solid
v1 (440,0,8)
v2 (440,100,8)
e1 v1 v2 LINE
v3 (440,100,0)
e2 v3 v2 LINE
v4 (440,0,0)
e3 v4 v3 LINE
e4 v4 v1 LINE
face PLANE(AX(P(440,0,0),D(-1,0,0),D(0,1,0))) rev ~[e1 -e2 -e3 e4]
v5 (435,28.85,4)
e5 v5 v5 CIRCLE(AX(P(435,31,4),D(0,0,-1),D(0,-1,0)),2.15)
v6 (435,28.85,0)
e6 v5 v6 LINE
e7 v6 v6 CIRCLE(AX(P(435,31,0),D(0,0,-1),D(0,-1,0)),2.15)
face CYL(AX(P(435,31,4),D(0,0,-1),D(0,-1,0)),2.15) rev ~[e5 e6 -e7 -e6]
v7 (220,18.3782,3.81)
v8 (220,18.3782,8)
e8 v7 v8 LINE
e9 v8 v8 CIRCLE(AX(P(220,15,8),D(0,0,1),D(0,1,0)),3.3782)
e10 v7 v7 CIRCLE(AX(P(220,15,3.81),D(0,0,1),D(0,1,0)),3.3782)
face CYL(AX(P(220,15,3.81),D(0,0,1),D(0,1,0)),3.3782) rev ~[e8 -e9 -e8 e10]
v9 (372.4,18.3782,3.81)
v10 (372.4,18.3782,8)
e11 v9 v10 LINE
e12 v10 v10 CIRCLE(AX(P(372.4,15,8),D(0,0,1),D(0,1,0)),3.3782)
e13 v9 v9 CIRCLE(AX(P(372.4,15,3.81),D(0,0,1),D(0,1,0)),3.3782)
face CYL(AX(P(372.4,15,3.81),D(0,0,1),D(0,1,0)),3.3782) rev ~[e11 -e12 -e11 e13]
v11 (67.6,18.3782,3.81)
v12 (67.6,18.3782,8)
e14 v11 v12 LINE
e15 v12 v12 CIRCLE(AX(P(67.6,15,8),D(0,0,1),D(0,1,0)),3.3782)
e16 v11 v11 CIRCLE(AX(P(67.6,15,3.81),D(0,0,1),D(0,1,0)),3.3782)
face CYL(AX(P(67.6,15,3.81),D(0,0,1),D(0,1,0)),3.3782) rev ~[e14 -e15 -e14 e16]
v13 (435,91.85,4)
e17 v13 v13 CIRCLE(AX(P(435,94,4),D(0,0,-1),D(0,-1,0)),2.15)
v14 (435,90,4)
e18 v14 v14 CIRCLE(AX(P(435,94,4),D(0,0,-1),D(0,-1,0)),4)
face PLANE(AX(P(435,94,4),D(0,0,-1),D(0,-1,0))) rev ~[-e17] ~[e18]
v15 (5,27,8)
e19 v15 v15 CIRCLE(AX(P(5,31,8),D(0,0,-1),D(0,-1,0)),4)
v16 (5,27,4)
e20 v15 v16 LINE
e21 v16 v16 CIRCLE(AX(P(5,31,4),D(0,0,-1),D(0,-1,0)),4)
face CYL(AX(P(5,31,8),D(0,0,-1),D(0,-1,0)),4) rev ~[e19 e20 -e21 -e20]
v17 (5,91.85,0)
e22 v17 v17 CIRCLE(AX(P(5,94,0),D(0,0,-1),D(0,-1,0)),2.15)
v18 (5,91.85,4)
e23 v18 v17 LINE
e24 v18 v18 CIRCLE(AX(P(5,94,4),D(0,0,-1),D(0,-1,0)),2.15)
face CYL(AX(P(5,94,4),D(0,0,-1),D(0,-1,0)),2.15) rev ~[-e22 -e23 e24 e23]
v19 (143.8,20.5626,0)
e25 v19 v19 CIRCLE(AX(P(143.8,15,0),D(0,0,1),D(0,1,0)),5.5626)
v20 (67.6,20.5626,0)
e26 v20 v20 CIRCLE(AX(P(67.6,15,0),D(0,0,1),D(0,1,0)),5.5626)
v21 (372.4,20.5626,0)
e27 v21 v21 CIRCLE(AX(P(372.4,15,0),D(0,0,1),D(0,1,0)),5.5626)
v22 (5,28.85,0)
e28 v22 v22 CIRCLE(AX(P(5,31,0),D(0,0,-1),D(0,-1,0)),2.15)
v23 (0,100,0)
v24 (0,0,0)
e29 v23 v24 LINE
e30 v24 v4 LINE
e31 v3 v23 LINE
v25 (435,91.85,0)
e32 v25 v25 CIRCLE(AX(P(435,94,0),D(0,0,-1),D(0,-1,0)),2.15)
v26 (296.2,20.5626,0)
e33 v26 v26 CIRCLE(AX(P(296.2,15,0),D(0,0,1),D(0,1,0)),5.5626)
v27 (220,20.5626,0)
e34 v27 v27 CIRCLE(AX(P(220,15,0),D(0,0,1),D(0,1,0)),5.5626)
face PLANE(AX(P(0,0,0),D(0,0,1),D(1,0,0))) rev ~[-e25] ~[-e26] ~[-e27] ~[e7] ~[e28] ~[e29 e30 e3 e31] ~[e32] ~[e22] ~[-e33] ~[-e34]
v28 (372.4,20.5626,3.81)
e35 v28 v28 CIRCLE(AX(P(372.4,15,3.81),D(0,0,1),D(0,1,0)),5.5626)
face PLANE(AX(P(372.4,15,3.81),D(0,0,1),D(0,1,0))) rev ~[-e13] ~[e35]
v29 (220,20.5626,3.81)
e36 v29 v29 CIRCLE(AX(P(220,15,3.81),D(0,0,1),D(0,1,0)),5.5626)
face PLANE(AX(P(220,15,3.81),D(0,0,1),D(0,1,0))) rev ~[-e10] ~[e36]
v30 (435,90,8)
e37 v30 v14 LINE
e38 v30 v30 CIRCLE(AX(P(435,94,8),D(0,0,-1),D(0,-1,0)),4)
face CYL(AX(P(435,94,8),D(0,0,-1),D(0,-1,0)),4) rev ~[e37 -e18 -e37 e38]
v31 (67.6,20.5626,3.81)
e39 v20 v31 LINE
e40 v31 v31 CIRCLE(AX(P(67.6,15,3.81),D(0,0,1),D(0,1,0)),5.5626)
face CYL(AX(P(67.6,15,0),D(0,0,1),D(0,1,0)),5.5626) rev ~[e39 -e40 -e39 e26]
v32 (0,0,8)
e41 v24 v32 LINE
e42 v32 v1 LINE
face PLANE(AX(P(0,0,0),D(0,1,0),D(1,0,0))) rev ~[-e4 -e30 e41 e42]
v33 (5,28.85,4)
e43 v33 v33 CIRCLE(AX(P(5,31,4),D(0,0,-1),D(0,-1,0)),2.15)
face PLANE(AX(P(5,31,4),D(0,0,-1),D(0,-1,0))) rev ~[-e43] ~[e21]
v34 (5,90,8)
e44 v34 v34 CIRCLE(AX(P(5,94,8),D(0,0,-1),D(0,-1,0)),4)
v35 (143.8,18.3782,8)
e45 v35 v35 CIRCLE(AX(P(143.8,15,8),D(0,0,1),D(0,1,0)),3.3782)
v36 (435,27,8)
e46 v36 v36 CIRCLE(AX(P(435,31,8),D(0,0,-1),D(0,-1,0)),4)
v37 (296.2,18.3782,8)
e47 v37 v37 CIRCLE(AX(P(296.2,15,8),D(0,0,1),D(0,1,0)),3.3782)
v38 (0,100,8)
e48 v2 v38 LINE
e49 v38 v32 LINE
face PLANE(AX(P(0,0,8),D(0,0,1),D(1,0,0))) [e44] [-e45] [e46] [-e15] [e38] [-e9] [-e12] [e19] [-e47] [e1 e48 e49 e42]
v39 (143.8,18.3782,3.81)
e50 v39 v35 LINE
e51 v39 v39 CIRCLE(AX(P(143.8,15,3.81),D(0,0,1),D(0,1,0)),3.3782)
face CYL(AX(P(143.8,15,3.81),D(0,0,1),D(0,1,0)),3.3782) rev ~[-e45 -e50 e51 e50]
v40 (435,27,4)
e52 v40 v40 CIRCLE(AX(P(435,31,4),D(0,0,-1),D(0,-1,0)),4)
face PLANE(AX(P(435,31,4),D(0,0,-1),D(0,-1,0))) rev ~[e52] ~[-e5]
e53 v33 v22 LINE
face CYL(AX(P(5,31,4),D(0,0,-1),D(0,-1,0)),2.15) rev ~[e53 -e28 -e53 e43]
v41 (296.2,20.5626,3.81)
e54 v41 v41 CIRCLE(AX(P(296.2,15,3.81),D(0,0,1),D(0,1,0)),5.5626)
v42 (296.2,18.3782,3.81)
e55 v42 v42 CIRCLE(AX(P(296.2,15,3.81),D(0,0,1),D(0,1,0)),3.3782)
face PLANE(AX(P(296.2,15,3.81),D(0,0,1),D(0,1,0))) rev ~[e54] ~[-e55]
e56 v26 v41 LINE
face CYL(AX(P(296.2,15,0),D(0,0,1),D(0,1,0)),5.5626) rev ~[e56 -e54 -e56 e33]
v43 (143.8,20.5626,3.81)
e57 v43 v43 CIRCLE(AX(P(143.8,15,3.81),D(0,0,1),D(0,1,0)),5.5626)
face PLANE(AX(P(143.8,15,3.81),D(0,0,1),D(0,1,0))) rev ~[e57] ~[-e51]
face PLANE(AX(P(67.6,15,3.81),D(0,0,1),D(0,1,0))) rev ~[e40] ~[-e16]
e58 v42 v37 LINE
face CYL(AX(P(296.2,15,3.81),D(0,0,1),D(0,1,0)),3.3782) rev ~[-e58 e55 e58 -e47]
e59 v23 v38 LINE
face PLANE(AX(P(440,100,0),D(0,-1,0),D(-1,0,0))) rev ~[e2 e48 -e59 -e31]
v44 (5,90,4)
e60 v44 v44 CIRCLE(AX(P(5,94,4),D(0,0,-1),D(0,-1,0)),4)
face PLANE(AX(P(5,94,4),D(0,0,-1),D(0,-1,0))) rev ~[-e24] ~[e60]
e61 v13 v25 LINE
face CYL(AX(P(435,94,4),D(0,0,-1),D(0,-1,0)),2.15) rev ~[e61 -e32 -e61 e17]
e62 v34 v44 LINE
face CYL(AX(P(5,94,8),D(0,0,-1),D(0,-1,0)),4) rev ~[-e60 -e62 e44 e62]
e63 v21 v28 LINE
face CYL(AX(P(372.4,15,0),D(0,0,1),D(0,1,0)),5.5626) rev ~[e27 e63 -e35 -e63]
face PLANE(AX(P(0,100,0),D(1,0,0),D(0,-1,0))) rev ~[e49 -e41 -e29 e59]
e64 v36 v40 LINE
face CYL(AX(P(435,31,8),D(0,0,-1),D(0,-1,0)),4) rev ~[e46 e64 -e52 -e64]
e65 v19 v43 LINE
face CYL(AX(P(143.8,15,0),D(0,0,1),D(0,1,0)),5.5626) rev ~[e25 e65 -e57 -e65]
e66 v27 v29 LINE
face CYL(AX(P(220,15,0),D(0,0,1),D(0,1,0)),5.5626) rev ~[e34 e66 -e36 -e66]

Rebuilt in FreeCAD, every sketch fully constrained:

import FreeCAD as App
import Part
import Sketcher
from FreeCAD import Vector

doc = App.newDocument("Part")
body = doc.addObject("PartDesign::Body", "Body")

# Sketch on XY plane
sketch1 = body.newObject("Sketcher::SketchObject", "Sketch")
sketch1.AttachmentSupport = (doc.getObject("XY_Plane"), [""])
sketch1.MapMode = "FlatFace"
sketch1.addGeometry(Part.LineSegment(Vector(0, 100, 0), Vector(0, 0, 0)), False)
sketch1.addGeometry(Part.LineSegment(Vector(0, 0, 0), Vector(440, 0, 0)), False)
sketch1.addGeometry(Part.LineSegment(Vector(440, 0, 0), Vector(440, 100, 0)), False)
sketch1.addGeometry(Part.LineSegment(Vector(440, 100, 0), Vector(0, 100, 0)), False)
sketch1.addConstraint(Sketcher.Constraint("Coincident", 0, 2, 1, 1))
sketch1.addConstraint(Sketcher.Constraint("Coincident", 1, 2, 2, 1))
sketch1.addConstraint(Sketcher.Constraint("Coincident", 2, 2, 3, 1))
sketch1.addConstraint(Sketcher.Constraint("Coincident", 3, 2, 0, 1))
sketch1.addConstraint(Sketcher.Constraint("Vertical", 0))
sketch1.addConstraint(Sketcher.Constraint("Horizontal", 1))
sketch1.addConstraint(Sketcher.Constraint("Vertical", 2))
sketch1.addConstraint(Sketcher.Constraint("Horizontal", 3))
sketch1.addConstraint(Sketcher.Constraint("Coincident", 0, 2, -1, 1))
sketch1.addConstraint(Sketcher.Constraint("DistanceX", 1, 1, 1, 2, 440.0))
sketch1.addConstraint(Sketcher.Constraint("DistanceY", 0, 2, 0, 1, 100.0))
pad1 = body.newObject("PartDesign::Pad", "Pad")
pad1.Profile = sketch1
pad1.Length = 8

# Sketch on XY plane
sketch2 = body.newObject("Sketcher::SketchObject", "Sketch001")
sketch2.AttachmentSupport = (doc.getObject("XY_Plane"), [""])
sketch2.MapMode = "FlatFace"
sketch2.AttachmentOffset = App.Placement(Vector(0, 0, 8), App.Rotation())
sketch2.addGeometry(Part.Circle(Vector(435, 31, 0), Vector(0, 0, 1), 2.1), False)
sketch2.addGeometry(Part.Circle(Vector(435, 94, 0), Vector(0, 0, 1), 2.1), False)
sketch2.addGeometry(Part.Circle(Vector(5, 31, 0), Vector(0, 0, 1), 2.1), False)
sketch2.addGeometry(Part.Circle(Vector(5, 94, 0), Vector(0, 0, 1), 2.1), False)
sketch2.addConstraint(Sketcher.Constraint("Equal", 0, 1))
sketch2.addConstraint(Sketcher.Constraint("Equal", 1, 2))
sketch2.addConstraint(Sketcher.Constraint("Equal", 2, 3))
sketch2.addConstraint(Sketcher.Constraint("Horizontal", 0, 3, 2, 3))
sketch2.addConstraint(Sketcher.Constraint("Horizontal", 1, 3, 3, 3))
sketch2.addConstraint(Sketcher.Constraint("Vertical", 0, 3, 1, 3))
sketch2.addConstraint(Sketcher.Constraint("Vertical", 2, 3, 3, 3))
sketch2.addConstraint(Sketcher.Constraint("Diameter", 0, 4.3))
sketch2.addConstraint(Sketcher.Constraint("DistanceX", -1, 1, 0, 3, 435.0))
sketch2.addConstraint(Sketcher.Constraint("DistanceY", -1, 1, 0, 3, 31.0))
sketch2.addConstraint(Sketcher.Constraint("DistanceY", -1, 1, 1, 3, 94.0))
sketch2.addConstraint(Sketcher.Constraint("DistanceX", -1, 1, 2, 3, 5.0))
doc.recompute()
hole = body.newObject("PartDesign::Hole", "Hole")
hole.Profile = sketch2
hole.ThreadType = "None"
hole.Diameter = 4.3
hole.DepthType = "ThroughAll"
hole.HoleCutType = "Counterbore"
hole.HoleCutDiameter = 8
hole.HoleCutDepth = 4

# Sketch on XY plane
sketch3 = body.newObject("Sketcher::SketchObject", "Sketch002")
sketch3.AttachmentSupport = (doc.getObject("XY_Plane"), [""])
sketch3.MapMode = "FlatFace"
sketch3.addGeometry(Part.Circle(Vector(67.6, 15, 0), Vector(0, 0, 1), 3.4), False)
sketch3.addGeometry(Part.Circle(Vector(143.8, 15, 0), Vector(0, 0, 1), 3.4), False)
sketch3.addGeometry(Part.Circle(Vector(220, 15, 0), Vector(0, 0, 1), 3.4), False)
sketch3.addGeometry(Part.Circle(Vector(296.2, 15, 0), Vector(0, 0, 1), 3.4), False)
sketch3.addGeometry(Part.Circle(Vector(372.4, 15, 0), Vector(0, 0, 1), 3.4), False)
sketch3.addConstraint(Sketcher.Constraint("Equal", 0, 1))
sketch3.addConstraint(Sketcher.Constraint("Equal", 1, 2))
sketch3.addConstraint(Sketcher.Constraint("Equal", 2, 3))
sketch3.addConstraint(Sketcher.Constraint("Equal", 3, 4))
sketch3.addConstraint(Sketcher.Constraint("Horizontal", 0, 3, 1, 3))
sketch3.addConstraint(Sketcher.Constraint("Horizontal", 1, 3, 2, 3))
sketch3.addConstraint(Sketcher.Constraint("Horizontal", 2, 3, 3, 3))
sketch3.addConstraint(Sketcher.Constraint("Horizontal", 3, 3, 4, 3))
sketch3.addConstraint(Sketcher.Constraint("DistanceY", -1, 1, 0, 3, 15.0))
sketch3.addConstraint(Sketcher.Constraint("DistanceX", -1, 1, 2, 3, 220.0))
sketch3.addConstraint(Sketcher.Constraint("Diameter", 0, 6.7564))
sketch3.addConstraint(Sketcher.Constraint("DistanceX", -1, 1, 0, 3, 67.6))
sketch3.addConstraint(Sketcher.Constraint("DistanceX", -1, 1, 1, 3, 143.8))
sketch3.addConstraint(Sketcher.Constraint("DistanceX", -1, 1, 3, 3, 296.2))
sketch3.addConstraint(Sketcher.Constraint("DistanceX", -1, 1, 4, 3, 372.4))
doc.recompute()
hole2 = body.newObject("PartDesign::Hole", "Hole001")
hole2.Profile = sketch3
hole2.ThreadType = "None"
hole2.Diameter = 6.7564
hole2.DepthType = "ThroughAll"
hole2.HoleCutType = "Counterbore"
hole2.HoleCutDiameter = 11.1252
hole2.HoleCutDepth = 3.81
hole2.Reversed = True

doc.recompute()
